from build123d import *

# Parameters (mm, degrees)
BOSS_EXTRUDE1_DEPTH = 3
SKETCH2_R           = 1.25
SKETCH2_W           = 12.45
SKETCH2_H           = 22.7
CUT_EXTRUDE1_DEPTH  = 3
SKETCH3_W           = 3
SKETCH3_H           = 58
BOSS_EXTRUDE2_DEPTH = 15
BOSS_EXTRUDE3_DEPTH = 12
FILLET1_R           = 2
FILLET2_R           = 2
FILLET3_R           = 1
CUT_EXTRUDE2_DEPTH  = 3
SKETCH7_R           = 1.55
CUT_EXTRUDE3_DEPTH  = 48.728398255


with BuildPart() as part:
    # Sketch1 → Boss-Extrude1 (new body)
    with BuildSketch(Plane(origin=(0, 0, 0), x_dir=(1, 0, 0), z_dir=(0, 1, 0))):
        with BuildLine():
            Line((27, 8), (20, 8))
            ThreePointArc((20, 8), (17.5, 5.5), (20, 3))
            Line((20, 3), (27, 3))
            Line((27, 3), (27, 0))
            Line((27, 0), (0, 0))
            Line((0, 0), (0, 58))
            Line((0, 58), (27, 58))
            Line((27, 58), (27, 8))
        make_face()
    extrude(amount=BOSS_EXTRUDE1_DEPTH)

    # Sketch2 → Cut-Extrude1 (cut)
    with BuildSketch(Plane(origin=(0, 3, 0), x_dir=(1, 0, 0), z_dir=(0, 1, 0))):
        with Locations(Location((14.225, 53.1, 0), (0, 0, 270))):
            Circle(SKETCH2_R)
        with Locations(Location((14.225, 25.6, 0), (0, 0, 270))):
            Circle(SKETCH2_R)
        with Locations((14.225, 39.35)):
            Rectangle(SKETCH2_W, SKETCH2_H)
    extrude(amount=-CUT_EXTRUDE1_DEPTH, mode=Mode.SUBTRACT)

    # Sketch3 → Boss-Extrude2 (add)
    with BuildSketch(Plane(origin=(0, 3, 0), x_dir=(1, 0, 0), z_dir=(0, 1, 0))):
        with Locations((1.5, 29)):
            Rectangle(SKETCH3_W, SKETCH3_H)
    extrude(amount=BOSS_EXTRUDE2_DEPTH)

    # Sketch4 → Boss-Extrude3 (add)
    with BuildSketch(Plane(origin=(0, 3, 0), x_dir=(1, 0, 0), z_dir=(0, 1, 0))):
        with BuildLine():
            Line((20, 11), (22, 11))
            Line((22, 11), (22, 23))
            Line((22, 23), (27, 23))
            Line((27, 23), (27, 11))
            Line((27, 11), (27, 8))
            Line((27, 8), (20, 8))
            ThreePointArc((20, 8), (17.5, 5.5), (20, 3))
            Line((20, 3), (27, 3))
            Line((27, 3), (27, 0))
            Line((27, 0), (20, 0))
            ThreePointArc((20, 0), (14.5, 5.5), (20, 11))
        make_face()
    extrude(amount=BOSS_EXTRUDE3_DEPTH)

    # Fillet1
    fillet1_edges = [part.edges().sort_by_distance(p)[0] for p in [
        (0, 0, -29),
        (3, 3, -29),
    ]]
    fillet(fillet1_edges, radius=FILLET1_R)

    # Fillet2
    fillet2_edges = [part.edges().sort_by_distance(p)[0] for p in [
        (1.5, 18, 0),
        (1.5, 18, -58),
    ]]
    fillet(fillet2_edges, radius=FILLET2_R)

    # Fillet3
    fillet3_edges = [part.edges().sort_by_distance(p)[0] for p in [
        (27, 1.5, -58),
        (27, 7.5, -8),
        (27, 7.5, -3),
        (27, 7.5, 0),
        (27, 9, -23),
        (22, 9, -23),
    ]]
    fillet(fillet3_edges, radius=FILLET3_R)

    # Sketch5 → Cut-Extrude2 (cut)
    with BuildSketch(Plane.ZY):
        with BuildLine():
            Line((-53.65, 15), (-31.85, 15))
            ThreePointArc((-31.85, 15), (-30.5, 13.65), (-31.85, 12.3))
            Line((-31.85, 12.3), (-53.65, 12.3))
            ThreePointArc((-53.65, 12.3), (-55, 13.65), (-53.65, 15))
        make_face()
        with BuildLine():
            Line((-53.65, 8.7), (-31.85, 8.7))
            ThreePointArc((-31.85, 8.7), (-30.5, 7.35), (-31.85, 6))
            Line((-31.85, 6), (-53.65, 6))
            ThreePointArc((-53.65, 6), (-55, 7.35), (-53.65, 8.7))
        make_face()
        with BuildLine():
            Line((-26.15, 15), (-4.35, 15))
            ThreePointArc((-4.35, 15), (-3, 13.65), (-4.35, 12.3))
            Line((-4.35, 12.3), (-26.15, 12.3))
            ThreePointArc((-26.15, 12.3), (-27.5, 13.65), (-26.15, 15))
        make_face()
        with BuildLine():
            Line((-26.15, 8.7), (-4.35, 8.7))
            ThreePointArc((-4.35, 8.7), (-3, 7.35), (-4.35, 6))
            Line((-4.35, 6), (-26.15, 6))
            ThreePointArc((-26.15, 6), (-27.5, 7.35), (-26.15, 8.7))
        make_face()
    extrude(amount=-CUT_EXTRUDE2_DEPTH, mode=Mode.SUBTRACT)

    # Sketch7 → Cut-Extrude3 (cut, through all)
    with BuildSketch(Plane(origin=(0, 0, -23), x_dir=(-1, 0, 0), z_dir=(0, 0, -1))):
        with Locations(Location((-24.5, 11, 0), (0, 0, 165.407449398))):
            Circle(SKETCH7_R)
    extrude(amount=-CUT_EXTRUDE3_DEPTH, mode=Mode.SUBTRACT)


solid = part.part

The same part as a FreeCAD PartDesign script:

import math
import FreeCAD as App
import Part
import Sketcher

V = App.Vector


def edges_at(feature, points):
    """Names of the edges that pass closest to the given points."""
    edges = feature.Shape.Edges
    near = lambda p: min(range(len(edges)), key=lambda i: edges[i].distToShape(Part.Vertex(*p))[0])
    return sorted({f"Edge{near(p) + 1}" for p in points})

doc = App.newDocument("Part")
body = doc.addObject("PartDesign::Body", "Body")

sketch1 = body.newObject("Sketcher::SketchObject", "Sketch")
sketch1.AttachmentSupport = (doc.getObject("XZ_Plane"), [""])
sketch1.MapMode = "FlatFace"
sketch1.addGeometry(Part.LineSegment(V(20, -8, 0), V(27, -8, 0)), False)
sketch1.addGeometry(Part.LineSegment(V(27, -8, 0), V(27, -58, 0)), False)
sketch1.addGeometry(Part.LineSegment(V(27, -58, 0), V(0, -58, 0)), False)
sketch1.addGeometry(Part.LineSegment(V(0, -58, 0), V(0, 0, 0)), False)
sketch1.addGeometry(Part.LineSegment(V(0, 0, 0), V(27, 0, 0)), False)
sketch1.addGeometry(Part.LineSegment(V(27, 0, 0), V(27, -3, 0)), False)
sketch1.addGeometry(Part.LineSegment(V(27, -3, 0), V(20, -3, 0)), False)
sketch1.addGeometry(Part.ArcOfCircle(Part.Circle(V(20, -5.5, 0), V(0, 0, 1), 2.5), math.radians(90), math.radians(270)), False)
sketch1.addConstraint(Sketcher.Constraint("Coincident", 0, 2, 1, 1))
sketch1.addConstraint(Sketcher.Constraint("Coincident", 1, 2, 2, 1))
sketch1.addConstraint(Sketcher.Constraint("Coincident", 2, 2, 3, 1))
sketch1.addConstraint(Sketcher.Constraint("Coincident", 3, 2, 4, 1))
sketch1.addConstraint(Sketcher.Constraint("Coincident", 4, 2, 5, 1))
sketch1.addConstraint(Sketcher.Constraint("Coincident", 5, 2, 6, 1))
sketch1.addConstraint(Sketcher.Constraint("Tangent", 6, 2, 7, 1))
sketch1.addConstraint(Sketcher.Constraint("Tangent", 7, 2, 0, 1))
sketch1.addConstraint(Sketcher.Constraint("Horizontal", 0))
sketch1.addConstraint(Sketcher.Constraint("Vertical", 1))
sketch1.addConstraint(Sketcher.Constraint("Horizontal", 2))
sketch1.addConstraint(Sketcher.Constraint("Vertical", 3))
sketch1.addConstraint(Sketcher.Constraint("Horizontal", 4))
sketch1.addConstraint(Sketcher.Constraint("Vertical", 5))
sketch1.addConstraint(Sketcher.Constraint("Horizontal", 6))
sketch1.addConstraint(Sketcher.Constraint("Coincident", 3, 2, -1, 1))
sketch1.addConstraint(Sketcher.Constraint("Vertical", 1, 2, 4, 2))
sketch1.addConstraint(Sketcher.Constraint("Radius", 7, 2.5))
sketch1.addConstraint(Sketcher.Constraint("DistanceX", 0, 1, 0, 2, 7.0))
sketch1.addConstraint(Sketcher.Constraint("DistanceX", 2, 2, 2, 1, 27.0))
sketch1.addConstraint(Sketcher.Constraint("DistanceY", 1, 2, 1, 1, 50.0))
sketch1.addConstraint(Sketcher.Constraint("DistanceY", 3, 1, 3, 2, 58.0))
pad1 = body.newObject("PartDesign::Pad", "Pad")
pad1.Profile = sketch1
pad1.Length = 3
pad1.Reversed = True

sketch2 = body.newObject("Sketcher::SketchObject", "Sketch001")
sketch2.AttachmentSupport = (doc.getObject("XZ_Plane"), [""])
sketch2.MapMode = "FlatFace"
sketch2.AttachmentOffset = App.Placement(V(0, 0, -3), App.Rotation())
sketch2.addGeometry(Part.Circle(V(14.225, -53.1, 0), V(0, 0, 1), 1.25), False)
sketch2.addGeometry(Part.Circle(V(14.225, -25.6, 0), V(0, 0, 1), 1.25), False)
sketch2.addGeometry(Part.LineSegment(V(8, -50.7, 0), V(8, -28, 0)), False)
sketch2.addGeometry(Part.LineSegment(V(8, -28, 0), V(20.45, -28, 0)), False)
sketch2.addGeometry(Part.LineSegment(V(20.45, -28, 0), V(20.45, -50.7, 0)), False)
sketch2.addGeometry(Part.LineSegment(V(20.45, -50.7, 0), V(8, -50.7, 0)), False)
sketch2.addConstraint(Sketcher.Constraint("Coincident", 2, 2, 3, 1))
sketch2.addConstraint(Sketcher.Constraint("Coincident", 3, 2, 4, 1))
sketch2.addConstraint(Sketcher.Constraint("Coincident", 4, 2, 5, 1))
sketch2.addConstraint(Sketcher.Constraint("Coincident", 5, 2, 2, 1))
sketch2.addConstraint(Sketcher.Constraint("Vertical", 2))
sketch2.addConstraint(Sketcher.Constraint("Horizontal", 3))
sketch2.addConstraint(Sketcher.Constraint("Vertical", 4))
sketch2.addConstraint(Sketcher.Constraint("Horizontal", 5))
sketch2.addConstraint(Sketcher.Constraint("Equal", 0, 1))
sketch2.addConstraint(Sketcher.Constraint("Vertical", 0, 3, 1, 3))
sketch2.addConstraint(Sketcher.Constraint("Diameter", 0, 2.5))
sketch2.addConstraint(Sketcher.Constraint("DistanceY", 2, 1, 2, 2, 22.7))
sketch2.addConstraint(Sketcher.Constraint("DistanceX", -1, 1, 2, 2, 8.0))
sketch2.addConstraint(Sketcher.Constraint("DistanceY", 2, 2, -1, 1, 28.0))
sketch2.addConstraint(Sketcher.Constraint("DistanceX", 3, 1, 3, 2, 12.45))
sketch2.addConstraint(Sketcher.Constraint("DistanceY", 0, 3, -1, 1, 53.1))
sketch2.addConstraint(Sketcher.Constraint("DistanceY", 1, 3, -1, 1, 25.6))
sketch2.addConstraint(Sketcher.Constraint("DistanceX", -1, 1, 0, 3, 14.225))
pocket1 = body.newObject("PartDesign::Pocket", "Pocket")
pocket1.Profile = sketch2
pocket1.Length = 3
pocket1.Reversed = True

sketch3 = body.newObject("Sketcher::SketchObject", "Sketch002")
sketch3.AttachmentSupport = (doc.getObject("XZ_Plane"), [""])
sketch3.MapMode = "FlatFace"
sketch3.AttachmentOffset = App.Placement(V(0, 0, -3), App.Rotation())
sketch3.addGeometry(Part.LineSegment(V(0, -58, 0), V(0, 0, 0)), False)
sketch3.addGeometry(Part.LineSegment(V(0, 0, 0), V(3, 0, 0)), False)
sketch3.addGeometry(Part.LineSegment(V(3, 0, 0), V(3, -58, 0)), False)
sketch3.addGeometry(Part.LineSegment(V(3, -58, 0), V(0, -58, 0)), False)
sketch3.addConstraint(Sketcher.Constraint("Coincident", 0, 2, 1, 1))
sketch3.addConstraint(Sketcher.Constraint("Coincident", 1, 2, 2, 1))
sketch3.addConstraint(Sketcher.Constraint("Coincident", 2, 2, 3, 1))
sketch3.addConstraint(Sketcher.Constraint("Coincident", 3, 2, 0, 1))
sketch3.addConstraint(Sketcher.Constraint("Vertical", 0))
sketch3.addConstraint(Sketcher.Constraint("Horizontal", 1))
sketch3.addConstraint(Sketcher.Constraint("Vertical", 2))
sketch3.addConstraint(Sketcher.Constraint("Horizontal", 3))
sketch3.addConstraint(Sketcher.Constraint("Coincident", 0, 2, -1, 1))
sketch3.addConstraint(Sketcher.Constraint("DistanceX", 1, 1, 1, 2, 3.0))
sketch3.addConstraint(Sketcher.Constraint("DistanceY", 0, 1, 0, 2, 58.0))
pad2 = body.newObject("PartDesign::Pad", "Pad001")
pad2.Profile = sketch3
pad2.Length = 15
pad2.Reversed = True

sketch4 = body.newObject("Sketcher::SketchObject", "Sketch003")
sketch4.AttachmentSupport = (doc.getObject("XZ_Plane"), [""])
sketch4.MapMode = "FlatFace"
sketch4.AttachmentOffset = App.Placement(V(0, 0, -3), App.Rotation())
sketch4.addGeometry(Part.LineSegment(V(22, -11, 0), V(20, -11, 0)), False)
sketch4.addGeometry(Part.ArcOfCircle(Part.Circle(V(20, -5.5, 0), V(0, 0, 1), 5.5), math.radians(90), math.radians(270)), False)
sketch4.addGeometry(Part.LineSegment(V(20, 0, 0), V(27, 0, 0)), False)
sketch4.addGeometry(Part.LineSegment(V(27, 0, 0), V(27, -3, 0)), False)
sketch4.addGeometry(Part.LineSegment(V(27, -3, 0), V(20, -3, 0)), False)
sketch4.addGeometry(Part.ArcOfCircle(Part.Circle(V(20, -5.5, 0), V(0, 0, 1), 2.5), math.radians(90), math.radians(270)), False)
sketch4.addGeometry(Part.LineSegment(V(20, -8, 0), V(27, -8, 0)), False)
sketch4.addGeometry(Part.LineSegment(V(27, -8, 0), V(27, -23, 0)), False)
sketch4.addGeometry(Part.LineSegment(V(27, -23, 0), V(22, -23, 0)), False)
sketch4.addGeometry(Part.LineSegment(V(22, -23, 0), V(22, -11, 0)), False)
sketch4.addConstraint(Sketcher.Constraint("Tangent", 0, 2, 1, 2))
sketch4.addConstraint(Sketcher.Constraint("Tangent", 1, 1, 2, 1))
sketch4.addConstraint(Sketcher.Constraint("Coincident", 2, 2, 3, 1))
sketch4.addConstraint(Sketcher.Constraint("Coincident", 3, 2, 4, 1))
sketch4.addConstraint(Sketcher.Constraint("Tangent", 4, 2, 5, 1))
sketch4.addConstraint(Sketcher.Constraint("Tangent", 5, 2, 6, 1))
sketch4.addConstraint(Sketcher.Constraint("Coincident", 6, 2, 7, 1))
sketch4.addConstraint(Sketcher.Constraint("Coincident", 7, 2, 8, 1))
sketch4.addConstraint(Sketcher.Constraint("Coincident", 8, 2, 9, 1))
sketch4.addConstraint(Sketcher.Constraint("Coincident", 9, 2, 0, 1))
sketch4.addConstraint(Sketcher.Constraint("Horizontal", 0))
sketch4.addConstraint(Sketcher.Constraint("Horizontal", 2))
sketch4.addConstraint(Sketcher.Constraint("Vertical", 3))
sketch4.addConstraint(Sketcher.Constraint("Horizontal", 4))
sketch4.addConstraint(Sketcher.Constraint("Horizontal", 6))
sketch4.addConstraint(Sketcher.Constraint("Vertical", 7))
sketch4.addConstraint(Sketcher.Constraint("Horizontal", 8))
sketch4.addConstraint(Sketcher.Constraint("Vertical", 9))
sketch4.addConstraint(Sketcher.Constraint("Coincident", 5, 3, 1, 3))
sketch4.addConstraint(Sketcher.Constraint("PointOnObject", 1, 1, -1))
sketch4.addConstraint(Sketcher.Constraint("Vertical", 3, 2, 6, 2))
sketch4.addConstraint(Sketcher.Constraint("Radius", 1, 5.5))
sketch4.addConstraint(Sketcher.Constraint("Radius", 5, 2.5))
sketch4.addConstraint(Sketcher.Constraint("DistanceX", 0, 2, 0, 1, 2.0))
sketch4.addConstraint(Sketcher.Constraint("DistanceX", 2, 1, 2, 2, 7.0))
sketch4.addConstraint(Sketcher.Constraint("DistanceY", 7, 2, 7, 1, 15.0))
sketch4.addConstraint(Sketcher.Constraint("DistanceX", -1, 1, 1, 3, 20.0))
pad3 = body.newObject("PartDesign::Pad", "Pad002")
pad3.Profile = sketch4
pad3.Length = 12
pad3.Reversed = True
doc.recompute()

fillet = body.newObject("PartDesign::Fillet", "Fillet")
fillet.Base = (pad3, edges_at(pad3, [(0, 0, -29), (3, 3, -29)]))
fillet.Radius = 2
doc.recompute()

fillet2 = body.newObject("PartDesign::Fillet", "Fillet001")
fillet2.Base = (fillet, edges_at(fillet, [(1.5, 18, 0), (1.5, 18, -58)]))
fillet2.Radius = 2
doc.recompute()

fillet3 = body.newObject("PartDesign::Fillet", "Fillet002")
fillet3.Base = (fillet2, edges_at(fillet2, [
    (27, 1.5, -58),
    (27, 7.5, -8),
    (27, 7.5, -3),
    (27, 7.5, 0),
    (27, 9, -23),
    (22, 9, -23),
]))
fillet3.Radius = 1

sketch5 = body.newObject("Sketcher::SketchObject", "Sketch004")
sketch5.AttachmentSupport = (doc.getObject("YZ_Plane"), [""])
sketch5.MapMode = "FlatFace"
sketch5.addGeometry(Part.LineSegment(V(15, -31.85, 0), V(15, -53.65, 0)), False)
sketch5.addGeometry(Part.ArcOfCircle(Part.Circle(V(13.65, -53.65, 0), V(0, 0, 1), 1.35), math.radians(180), math.radians(360)), False)
sketch5.addGeometry(Part.LineSegment(V(12.3, -53.65, 0), V(12.3, -31.85, 0)), False)
sketch5.addGeometry(Part.ArcOfCircle(Part.Circle(V(13.65, -31.85, 0), V(0, 0, 1), 1.35), math.radians(0), math.radians(180)), False)
sketch5.addGeometry(Part.LineSegment(V(8.7, -31.85, 0), V(8.7, -53.65, 0)), False)
sketch5.addGeometry(Part.ArcOfCircle(Part.Circle(V(7.35, -53.65, 0), V(0, 0, 1), 1.35), math.radians(180), math.radians(360)), False)
sketch5.addGeometry(Part.LineSegment(V(6, -53.65, 0), V(6, -31.85, 0)), False)
sketch5.addGeometry(Part.ArcOfCircle(Part.Circle(V(7.35, -31.85, 0), V(0, 0, 1), 1.35), math.radians(0), math.radians(180)), False)
sketch5.addGeometry(Part.LineSegment(V(15, -4.35, 0), V(15, -26.15, 0)), False)
sketch5.addGeometry(Part.ArcOfCircle(Part.Circle(V(13.65, -26.15, 0), V(0, 0, 1), 1.35), math.radians(180), math.radians(360)), False)
sketch5.addGeometry(Part.LineSegment(V(12.3, -26.15, 0), V(12.3, -4.35, 0)), False)
sketch5.addGeometry(Part.ArcOfCircle(Part.Circle(V(13.65, -4.35, 0), V(0, 0, 1), 1.35), math.radians(0), math.radians(180)), False)
sketch5.addGeometry(Part.LineSegment(V(8.7, -4.35, 0), V(8.7, -26.15, 0)), False)
sketch5.addGeometry(Part.ArcOfCircle(Part.Circle(V(7.35, -26.15, 0), V(0, 0, 1), 1.35), math.radians(180), math.radians(360)), False)
sketch5.addGeometry(Part.LineSegment(V(6, -26.15, 0), V(6, -4.35, 0)), False)
sketch5.addGeometry(Part.ArcOfCircle(Part.Circle(V(7.35, -4.35, 0), V(0, 0, 1), 1.35), math.radians(0), math.radians(180)), False)
sketch5.addConstraint(Sketcher.Constraint("Tangent", 0, 2, 1, 2))
sketch5.addConstraint(Sketcher.Constraint("Tangent", 1, 1, 2, 1))
sketch5.addConstraint(Sketcher.Constraint("Tangent", 2, 2, 3, 2))
sketch5.addConstraint(Sketcher.Constraint("Tangent", 3, 1, 0, 1))
sketch5.addConstraint(Sketcher.Constraint("Tangent", 4, 2, 5, 2))
sketch5.addConstraint(Sketcher.Constraint("Tangent", 5, 1, 6, 1))
sketch5.addConstraint(Sketcher.Constraint("Tangent", 6, 2, 7, 2))
sketch5.addConstraint(Sketcher.Constraint("Tangent", 7, 1, 4, 1))
sketch5.addConstraint(Sketcher.Constraint("Tangent", 8, 2, 9, 2))
sketch5.addConstraint(Sketcher.Constraint("Tangent", 9, 1, 10, 1))
sketch5.addConstraint(Sketcher.Constraint("Tangent", 10, 2, 11, 2))
sketch5.addConstraint(Sketcher.Constraint("Tangent", 11, 1, 8, 1))
sketch5.addConstraint(Sketcher.Constraint("Tangent", 12, 2, 13, 2))
sketch5.addConstraint(Sketcher.Constraint("Tangent", 13, 1, 14, 1))
sketch5.addConstraint(Sketcher.Constraint("Tangent", 14, 2, 15, 2))
sketch5.addConstraint(Sketcher.Constraint("Tangent", 15, 1, 12, 1))
sketch5.addConstraint(Sketcher.Constraint("Vertical", 0))
sketch5.addConstraint(Sketcher.Constraint("Vertical", 2))
sketch5.addConstraint(Sketcher.Constraint("Vertical", 4))
sketch5.addConstraint(Sketcher.Constraint("Vertical", 6))
sketch5.addConstraint(Sketcher.Constraint("Vertical", 8))
sketch5.addConstraint(Sketcher.Constraint("Vertical", 10))
sketch5.addConstraint(Sketcher.Constraint("Vertical", 12))
sketch5.addConstraint(Sketcher.Constraint("Vertical", 14))
sketch5.addConstraint(Sketcher.Constraint("Equal", 3, 5))
sketch5.addConstraint(Sketcher.Constraint("Equal", 7, 9))
sketch5.addConstraint(Sketcher.Constraint("Equal", 11, 13))
sketch5.addConstraint(Sketcher.Constraint("Horizontal", 1, 3, 5, 3))
sketch5.addConstraint(Sketcher.Constraint("Horizontal", 3, 3, 7, 3))
sketch5.addConstraint(Sketcher.Constraint("Horizontal", 9, 3, 13, 3))
sketch5.addConstraint(Sketcher.Constraint("Horizontal", 11, 3, 15, 3))
sketch5.addConstraint(Sketcher.Constraint("Vertical", 3, 3, 9, 3))
sketch5.addConstraint(Sketcher.Constraint("Vertical", 7, 3, 13, 3))
sketch5.addConstraint(Sketcher.Constraint("Equal", 6, 8))
sketch5.addConstraint(Sketcher.Constraint("Radius", 1, 1.35))
sketch5.addConstraint(Sketcher.Constraint("DistanceY", 0, 2, 0, 1, 21.8))
sketch5.addConstraint(Sketcher.Constraint("DistanceX", -1, 1, 0, 2, 15.0))
sketch5.addConstraint(Sketcher.Constraint("DistanceX", -1, 1, 5, 1, 6.0))
sketch5.addConstraint(Sketcher.Constraint("DistanceY", 3, 3, 9, 3, 5.7))
sketch5.addConstraint(Sketcher.Constraint("DistanceY", 1, 3, -1, 1, 53.65))
pocket2 = body.newObject("PartDesign::Pocket", "Pocket001")
pocket2.Profile = sketch5
pocket2.Length = 3
pocket2.Reversed = True

sketch6 = body.newObject("Sketcher::SketchObject", "Sketch005")
sketch6.AttachmentSupport = (doc.getObject("XY_Plane"), [""])
sketch6.MapMode = "FlatFace"
sketch6.AttachmentOffset = App.Placement(V(0, 0, -23), App.Rotation())
sketch6.addGeometry(Part.Circle(V(24.5, 11, 0), V(0, 0, 1), 1.55), False)
sketch6.addConstraint(Sketcher.Constraint("Diameter", 0, 3.1))
sketch6.addConstraint(Sketcher.Constraint("DistanceY", -1, 1, 0, 3, 11.0))
sketch6.addConstraint(Sketcher.Constraint("DistanceX", -1, 1, 0, 3, 24.5))
pocket3 = body.newObject("PartDesign::Pocket", "Pocket002")
pocket3.Profile = sketch6
pocket3.Type = "ThroughAll"
pocket3.Reversed = True

doc.recompute()
